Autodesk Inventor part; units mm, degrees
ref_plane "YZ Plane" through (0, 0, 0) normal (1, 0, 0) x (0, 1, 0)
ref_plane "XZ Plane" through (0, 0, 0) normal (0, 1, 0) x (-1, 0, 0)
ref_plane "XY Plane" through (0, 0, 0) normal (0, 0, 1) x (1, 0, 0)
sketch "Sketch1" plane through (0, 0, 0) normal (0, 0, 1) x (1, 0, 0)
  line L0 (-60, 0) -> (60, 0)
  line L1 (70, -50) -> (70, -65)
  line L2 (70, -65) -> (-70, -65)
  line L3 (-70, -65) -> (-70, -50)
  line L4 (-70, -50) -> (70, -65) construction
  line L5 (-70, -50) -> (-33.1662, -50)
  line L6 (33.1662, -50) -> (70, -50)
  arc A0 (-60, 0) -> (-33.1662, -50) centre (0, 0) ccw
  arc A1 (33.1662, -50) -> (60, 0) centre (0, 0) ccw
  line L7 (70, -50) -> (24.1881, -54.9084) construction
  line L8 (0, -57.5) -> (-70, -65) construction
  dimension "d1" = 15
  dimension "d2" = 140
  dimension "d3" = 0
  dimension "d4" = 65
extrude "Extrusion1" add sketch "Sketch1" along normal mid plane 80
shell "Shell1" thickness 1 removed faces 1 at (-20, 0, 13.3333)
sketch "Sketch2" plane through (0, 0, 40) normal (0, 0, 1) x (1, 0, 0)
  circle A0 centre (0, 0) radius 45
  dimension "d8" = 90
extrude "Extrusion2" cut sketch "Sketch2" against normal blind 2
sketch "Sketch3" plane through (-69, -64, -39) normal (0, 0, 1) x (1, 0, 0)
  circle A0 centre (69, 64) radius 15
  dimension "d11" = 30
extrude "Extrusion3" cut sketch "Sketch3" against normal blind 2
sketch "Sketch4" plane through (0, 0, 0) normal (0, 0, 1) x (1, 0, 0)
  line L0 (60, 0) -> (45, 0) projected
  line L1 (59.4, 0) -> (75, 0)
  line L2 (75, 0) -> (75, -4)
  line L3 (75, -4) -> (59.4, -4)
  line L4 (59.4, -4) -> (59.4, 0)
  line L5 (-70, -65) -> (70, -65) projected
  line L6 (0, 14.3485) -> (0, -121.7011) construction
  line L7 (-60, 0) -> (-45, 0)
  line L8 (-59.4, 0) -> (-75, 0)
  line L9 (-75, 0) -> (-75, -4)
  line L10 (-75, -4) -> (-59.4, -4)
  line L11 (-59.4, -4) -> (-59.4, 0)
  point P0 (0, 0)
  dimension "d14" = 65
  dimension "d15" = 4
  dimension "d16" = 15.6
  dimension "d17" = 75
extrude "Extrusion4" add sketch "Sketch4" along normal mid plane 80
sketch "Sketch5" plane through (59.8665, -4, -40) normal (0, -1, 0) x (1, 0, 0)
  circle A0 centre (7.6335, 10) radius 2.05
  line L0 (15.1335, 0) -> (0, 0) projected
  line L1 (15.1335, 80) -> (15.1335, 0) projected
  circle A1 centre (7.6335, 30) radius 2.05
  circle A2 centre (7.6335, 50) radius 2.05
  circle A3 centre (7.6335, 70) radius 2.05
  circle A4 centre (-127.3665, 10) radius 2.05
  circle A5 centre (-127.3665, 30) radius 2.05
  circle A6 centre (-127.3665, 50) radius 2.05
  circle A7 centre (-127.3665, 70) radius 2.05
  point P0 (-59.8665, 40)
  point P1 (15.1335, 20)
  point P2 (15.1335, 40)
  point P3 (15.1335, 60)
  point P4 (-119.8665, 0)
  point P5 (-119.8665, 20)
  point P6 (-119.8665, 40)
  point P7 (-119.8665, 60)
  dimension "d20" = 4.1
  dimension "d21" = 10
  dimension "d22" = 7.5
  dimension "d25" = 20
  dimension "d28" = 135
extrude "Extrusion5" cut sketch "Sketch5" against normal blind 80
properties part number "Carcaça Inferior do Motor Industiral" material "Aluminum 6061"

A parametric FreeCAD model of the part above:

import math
import FreeCAD as App
import Part
import Sketcher
from FreeCAD import Vector
Q = App.Units.Quantity


def faces_at(feature, points):
    """Names of the faces that lie closest to the given points."""
    faces = feature.Shape.Faces
    near = lambda p: min(range(len(faces)), key=lambda i: faces[i].distToShape(Part.Vertex(*p))[0])
    return sorted({f"Face{near(p) + 1}" for p in points})


def add_polygon(sketch, points):
    """Adds a closed chain of lines whose ends are joined by coincident constraints."""
    first, n = sketch.GeometryCount, len(points)
    for a, b in zip(points, points[1:] + points[:1]):
        sketch.addGeometry(Part.LineSegment(App.Vector(*a, 0), App.Vector(*b, 0)), False)
    for i in range(n):
        sketch.addConstraint(Sketcher.Constraint("Coincident", first + i, 2, first + (i + 1) % n, 1))

doc = App.newDocument("Part")
body = doc.addObject("PartDesign::Body", "Body")

sketch1 = body.newObject("Sketcher::SketchObject", "Sketch")
sketch1.AttachmentSupport = (doc.getObject("XY_Plane"), [""])
sketch1.MapMode = "FlatFace"
sketch1.addGeometry(Part.LineSegment(Vector(60, 0, 0), Vector(-60, 0, 0)), False)
sketch1.addGeometry(Part.ArcOfCircle(Part.Circle(Vector(0, 0, 0), Vector(0, 0, 1), 60), math.radians(180), math.radians(236)), False)
sketch1.addGeometry(Part.LineSegment(Vector(-33, -50, 0), Vector(-70, -50, 0)), False)
sketch1.addGeometry(Part.LineSegment(Vector(-70, -50, 0), Vector(-70, -65, 0)), False)
sketch1.addGeometry(Part.LineSegment(Vector(-70, -65, 0), Vector(70, -65, 0)), False)
sketch1.addGeometry(Part.LineSegment(Vector(70, -65, 0), Vector(70, -50, 0)), False)
sketch1.addGeometry(Part.LineSegment(Vector(70, -50, 0), Vector(33, -50, 0)), False)
sketch1.addGeometry(Part.ArcOfCircle(Part.Circle(Vector(0, 0, 0), Vector(0, 0, 1), 60), math.radians(-56), math.radians(0)), False)
sketch1.addConstraint(Sketcher.Constraint("Coincident", 0, 2, 1, 1))
sketch1.addConstraint(Sketcher.Constraint("Coincident", 1, 2, 2, 1))
sketch1.addConstraint(Sketcher.Constraint("Coincident", 2, 2, 3, 1))
sketch1.addConstraint(Sketcher.Constraint("Coincident", 3, 2, 4, 1))
sketch1.addConstraint(Sketcher.Constraint("Coincident", 4, 2, 5, 1))
sketch1.addConstraint(Sketcher.Constraint("Coincident", 5, 2, 6, 1))
sketch1.addConstraint(Sketcher.Constraint("Coincident", 6, 2, 7, 1))
sketch1.addConstraint(Sketcher.Constraint("Coincident", 7, 2, 0, 1))
sketch1.addConstraint(Sketcher.Constraint("Horizontal", 0))
sketch1.addConstraint(Sketcher.Constraint("Horizontal", 2))
sketch1.addConstraint(Sketcher.Constraint("Vertical", 3))
sketch1.addConstraint(Sketcher.Constraint("Horizontal", 4))
sketch1.addConstraint(Sketcher.Constraint("Vertical", 5))
sketch1.addConstraint(Sketcher.Constraint("Horizontal", 6))
sketch1.addConstraint(Sketcher.Constraint("Coincident", 1, 3, -1, 1))
sketch1.addConstraint(Sketcher.Constraint("Coincident", 7, 3, -1, 1))
sketch1.addConstraint(Sketcher.Constraint("Equal", 1, 7))
sketch1.addConstraint(Sketcher.Constraint("Symmetric", 2, 2, 5, 2, -2))
sketch1.addConstraint(Sketcher.Constraint("PointOnObject", 0, 2, -1))
sketch1.addConstraint(Sketcher.Constraint("DistanceX", 4, 1, 4, 2, Q("140 mm")))
sketch1.addConstraint(Sketcher.Constraint("DistanceY", 3, 2, 3, 1, Q("15 mm")))
sketch1.addConstraint(Sketcher.Constraint("DistanceY", 3, 2, -1, 1, Q("65 mm")))
sketch1.addConstraint(Sketcher.Constraint("Radius", 1, Q("60 mm")))
pad1 = body.newObject("PartDesign::Pad", "Pad")
pad1.Profile = sketch1
pad1.Length = 80
pad1.Midplane = True
doc.recompute()

thickness = body.newObject("PartDesign::Thickness", "Thickness")
thickness.Base = (pad1, faces_at(pad1, [(-20, 0, 13.333)]))
thickness.Value = 1
thickness.Reversed = True
thickness.Join = "Intersection"

sketch2 = body.newObject("Sketcher::SketchObject", "Sketch001")
sketch2.AttachmentSupport = (doc.getObject("XY_Plane"), [""])
sketch2.MapMode = "FlatFace"
sketch2.AttachmentOffset = App.Placement(Vector(0, 0, 40), App.Rotation())
sketch2.addGeometry(Part.Circle(Vector(0, 0, 0), Vector(0, 0, 1), 45), False)
sketch2.addConstraint(Sketcher.Constraint("Coincident", 0, 3, -1, 1))
sketch2.addConstraint(Sketcher.Constraint("Diameter", 0, Q("90 mm")))
pocket1 = body.newObject("PartDesign::Pocket", "Pocket")
pocket1.Profile = sketch2
pocket1.Length = 2

sketch3 = body.newObject("Sketcher::SketchObject", "Sketch002")
sketch3.AttachmentSupport = (doc.getObject("XY_Plane"), [""])
sketch3.MapMode = "FlatFace"
sketch3.AttachmentOffset = App.Placement(Vector(0, 0, -39), App.Rotation())
sketch3.addGeometry(Part.Circle(Vector(0, 0, 0), Vector(0, 0, 1), 15), False)
sketch3.addConstraint(Sketcher.Constraint("Coincident", 0, 3, -1, 1))
sketch3.addConstraint(Sketcher.Constraint("Diameter", 0, Q("30 mm")))
pocket2 = body.newObject("PartDesign::Pocket", "Pocket001")
pocket2.Profile = sketch3
pocket2.Length = 2

sketch4 = body.newObject("Sketcher::SketchObject", "Sketch003")
sketch4.AttachmentSupport = (doc.getObject("XY_Plane"), [""])
sketch4.MapMode = "FlatFace"
add_polygon(sketch4, [(75, 0), (59.4, 0), (59.4, -4), (75, -4)])
add_polygon(sketch4, [(-59.4, 0), (-75, 0), (-75, -4), (-59.4, -4)])
sketch4.addConstraint(Sketcher.Constraint("Horizontal", 0))
sketch4.addConstraint(Sketcher.Constraint("Vertical", 1))
sketch4.addConstraint(Sketcher.Constraint("Horizontal", 2))
sketch4.addConstraint(Sketcher.Constraint("Vertical", 3))
sketch4.addConstraint(Sketcher.Constraint("Horizontal", 4))
sketch4.addConstraint(Sketcher.Constraint("Vertical", 5))
sketch4.addConstraint(Sketcher.Constraint("Horizontal", 6))
sketch4.addConstraint(Sketcher.Constraint("Vertical", 7))
sketch4.addConstraint(Sketcher.Constraint("Symmetric", 3, 2, 4, 2, -1, 1))
sketch4.addConstraint(Sketcher.Constraint("Symmetric", 1, 2, 6, 2, -2))
sketch4.addConstraint(Sketcher.Constraint("PointOnObject", 0, 2, -1))
sketch4.addConstraint(Sketcher.Constraint("DistanceY", 1, 2, 1, 1, Q("4 mm")))
sketch4.addConstraint(Sketcher.Constraint("DistanceX", 0, 2, 0, 1, Q("15.6 mm")))
sketch4.addConstraint(Sketcher.Constraint("DistanceX", -1, 1, 2, 2, Q("75 mm")))
pad2 = body.newObject("PartDesign::Pad", "Pad001")
pad2.Profile = sketch4
pad2.Length = 80
pad2.Midplane = True

sketch5 = body.newObject("Sketcher::SketchObject", "Sketch004")
sketch5.AttachmentSupport = (doc.getObject("XZ_Plane"), [""])
sketch5.MapMode = "FlatFace"
sketch5.AttachmentOffset = App.Placement(Vector(0, 0, 4), App.Rotation())
sketch5.addGeometry(Part.Circle(Vector(67.5, -30, 0), Vector(0, 0, 1), 2), False)
sketch5.addGeometry(Part.Circle(Vector(67.5, -10, 0), Vector(0, 0, 1), 2), False)
sketch5.addGeometry(Part.Circle(Vector(67.5, 10, 0), Vector(0, 0, 1), 2), False)
sketch5.addGeometry(Part.Circle(Vector(67.5, 30, 0), Vector(0, 0, 1), 2), False)
sketch5.addGeometry(Part.Circle(Vector(-67.5, -30, 0), Vector(0, 0, 1), 2), False)
sketch5.addGeometry(Part.Circle(Vector(-67.5, -10, 0), Vector(0, 0, 1), 2), False)
sketch5.addGeometry(Part.Circle(Vector(-67.5, 10, 0), Vector(0, 0, 1), 2), False)
sketch5.addGeometry(Part.Circle(Vector(-67.5, 30, 0), Vector(0, 0, 1), 2), False)
sketch5.addConstraint(Sketcher.Constraint("Equal", 0, 1))
sketch5.addConstraint(Sketcher.Constraint("Equal", 1, 2))
sketch5.addConstraint(Sketcher.Constraint("Equal", 2, 3))
sketch5.addConstraint(Sketcher.Constraint("Equal", 3, 4))
sketch5.addConstraint(Sketcher.Constraint("Equal", 4, 5))
sketch5.addConstraint(Sketcher.Constraint("Equal", 5, 6))
sketch5.addConstraint(Sketcher.Constraint("Equal", 6, 7))
sketch5.addConstraint(Sketcher.Constraint("Symmetric", 3, 3, 4, 3, -1, 1))
sketch5.addConstraint(Sketcher.Constraint("Symmetric", 2, 3, 5, 3, -1, 1))
sketch5.addConstraint(Sketcher.Constraint("Symmetric", 1, 3, 6, 3, -1, 1))
sketch5.addConstraint(Sketcher.Constraint("Symmetric", 0, 3, 7, 3, -1, 1))
sketch5.addConstraint(Sketcher.Constraint("Symmetric", 0, 3, 4, 3, -2))
sketch5.addConstraint(Sketcher.Constraint("Symmetric", 1, 3, 5, 3, -2))
sketch5.addConstraint(Sketcher.Constraint("Vertical", 0, 3, 1, 3))
sketch5.addConstraint(Sketcher.Constraint("Diameter", 0, Q("4.1 mm")))
sketch5.addConstraint(Sketcher.Constraint("DistanceY", 1, 3, -1, 1, Q("10 mm")))
sketch5.addConstraint(Sketcher.Constraint("DistanceY", 0, 3, 1, 3, Q("20 mm")))
sketch5.addConstraint(Sketcher.Constraint("DistanceX", 4, 3, 0, 3, Q("135 mm")))
pocket3 = body.newObject("PartDesign::Pocket", "Pocket002")
pocket3.Profile = sketch5
pocket3.Length = 80

doc.recompute()
